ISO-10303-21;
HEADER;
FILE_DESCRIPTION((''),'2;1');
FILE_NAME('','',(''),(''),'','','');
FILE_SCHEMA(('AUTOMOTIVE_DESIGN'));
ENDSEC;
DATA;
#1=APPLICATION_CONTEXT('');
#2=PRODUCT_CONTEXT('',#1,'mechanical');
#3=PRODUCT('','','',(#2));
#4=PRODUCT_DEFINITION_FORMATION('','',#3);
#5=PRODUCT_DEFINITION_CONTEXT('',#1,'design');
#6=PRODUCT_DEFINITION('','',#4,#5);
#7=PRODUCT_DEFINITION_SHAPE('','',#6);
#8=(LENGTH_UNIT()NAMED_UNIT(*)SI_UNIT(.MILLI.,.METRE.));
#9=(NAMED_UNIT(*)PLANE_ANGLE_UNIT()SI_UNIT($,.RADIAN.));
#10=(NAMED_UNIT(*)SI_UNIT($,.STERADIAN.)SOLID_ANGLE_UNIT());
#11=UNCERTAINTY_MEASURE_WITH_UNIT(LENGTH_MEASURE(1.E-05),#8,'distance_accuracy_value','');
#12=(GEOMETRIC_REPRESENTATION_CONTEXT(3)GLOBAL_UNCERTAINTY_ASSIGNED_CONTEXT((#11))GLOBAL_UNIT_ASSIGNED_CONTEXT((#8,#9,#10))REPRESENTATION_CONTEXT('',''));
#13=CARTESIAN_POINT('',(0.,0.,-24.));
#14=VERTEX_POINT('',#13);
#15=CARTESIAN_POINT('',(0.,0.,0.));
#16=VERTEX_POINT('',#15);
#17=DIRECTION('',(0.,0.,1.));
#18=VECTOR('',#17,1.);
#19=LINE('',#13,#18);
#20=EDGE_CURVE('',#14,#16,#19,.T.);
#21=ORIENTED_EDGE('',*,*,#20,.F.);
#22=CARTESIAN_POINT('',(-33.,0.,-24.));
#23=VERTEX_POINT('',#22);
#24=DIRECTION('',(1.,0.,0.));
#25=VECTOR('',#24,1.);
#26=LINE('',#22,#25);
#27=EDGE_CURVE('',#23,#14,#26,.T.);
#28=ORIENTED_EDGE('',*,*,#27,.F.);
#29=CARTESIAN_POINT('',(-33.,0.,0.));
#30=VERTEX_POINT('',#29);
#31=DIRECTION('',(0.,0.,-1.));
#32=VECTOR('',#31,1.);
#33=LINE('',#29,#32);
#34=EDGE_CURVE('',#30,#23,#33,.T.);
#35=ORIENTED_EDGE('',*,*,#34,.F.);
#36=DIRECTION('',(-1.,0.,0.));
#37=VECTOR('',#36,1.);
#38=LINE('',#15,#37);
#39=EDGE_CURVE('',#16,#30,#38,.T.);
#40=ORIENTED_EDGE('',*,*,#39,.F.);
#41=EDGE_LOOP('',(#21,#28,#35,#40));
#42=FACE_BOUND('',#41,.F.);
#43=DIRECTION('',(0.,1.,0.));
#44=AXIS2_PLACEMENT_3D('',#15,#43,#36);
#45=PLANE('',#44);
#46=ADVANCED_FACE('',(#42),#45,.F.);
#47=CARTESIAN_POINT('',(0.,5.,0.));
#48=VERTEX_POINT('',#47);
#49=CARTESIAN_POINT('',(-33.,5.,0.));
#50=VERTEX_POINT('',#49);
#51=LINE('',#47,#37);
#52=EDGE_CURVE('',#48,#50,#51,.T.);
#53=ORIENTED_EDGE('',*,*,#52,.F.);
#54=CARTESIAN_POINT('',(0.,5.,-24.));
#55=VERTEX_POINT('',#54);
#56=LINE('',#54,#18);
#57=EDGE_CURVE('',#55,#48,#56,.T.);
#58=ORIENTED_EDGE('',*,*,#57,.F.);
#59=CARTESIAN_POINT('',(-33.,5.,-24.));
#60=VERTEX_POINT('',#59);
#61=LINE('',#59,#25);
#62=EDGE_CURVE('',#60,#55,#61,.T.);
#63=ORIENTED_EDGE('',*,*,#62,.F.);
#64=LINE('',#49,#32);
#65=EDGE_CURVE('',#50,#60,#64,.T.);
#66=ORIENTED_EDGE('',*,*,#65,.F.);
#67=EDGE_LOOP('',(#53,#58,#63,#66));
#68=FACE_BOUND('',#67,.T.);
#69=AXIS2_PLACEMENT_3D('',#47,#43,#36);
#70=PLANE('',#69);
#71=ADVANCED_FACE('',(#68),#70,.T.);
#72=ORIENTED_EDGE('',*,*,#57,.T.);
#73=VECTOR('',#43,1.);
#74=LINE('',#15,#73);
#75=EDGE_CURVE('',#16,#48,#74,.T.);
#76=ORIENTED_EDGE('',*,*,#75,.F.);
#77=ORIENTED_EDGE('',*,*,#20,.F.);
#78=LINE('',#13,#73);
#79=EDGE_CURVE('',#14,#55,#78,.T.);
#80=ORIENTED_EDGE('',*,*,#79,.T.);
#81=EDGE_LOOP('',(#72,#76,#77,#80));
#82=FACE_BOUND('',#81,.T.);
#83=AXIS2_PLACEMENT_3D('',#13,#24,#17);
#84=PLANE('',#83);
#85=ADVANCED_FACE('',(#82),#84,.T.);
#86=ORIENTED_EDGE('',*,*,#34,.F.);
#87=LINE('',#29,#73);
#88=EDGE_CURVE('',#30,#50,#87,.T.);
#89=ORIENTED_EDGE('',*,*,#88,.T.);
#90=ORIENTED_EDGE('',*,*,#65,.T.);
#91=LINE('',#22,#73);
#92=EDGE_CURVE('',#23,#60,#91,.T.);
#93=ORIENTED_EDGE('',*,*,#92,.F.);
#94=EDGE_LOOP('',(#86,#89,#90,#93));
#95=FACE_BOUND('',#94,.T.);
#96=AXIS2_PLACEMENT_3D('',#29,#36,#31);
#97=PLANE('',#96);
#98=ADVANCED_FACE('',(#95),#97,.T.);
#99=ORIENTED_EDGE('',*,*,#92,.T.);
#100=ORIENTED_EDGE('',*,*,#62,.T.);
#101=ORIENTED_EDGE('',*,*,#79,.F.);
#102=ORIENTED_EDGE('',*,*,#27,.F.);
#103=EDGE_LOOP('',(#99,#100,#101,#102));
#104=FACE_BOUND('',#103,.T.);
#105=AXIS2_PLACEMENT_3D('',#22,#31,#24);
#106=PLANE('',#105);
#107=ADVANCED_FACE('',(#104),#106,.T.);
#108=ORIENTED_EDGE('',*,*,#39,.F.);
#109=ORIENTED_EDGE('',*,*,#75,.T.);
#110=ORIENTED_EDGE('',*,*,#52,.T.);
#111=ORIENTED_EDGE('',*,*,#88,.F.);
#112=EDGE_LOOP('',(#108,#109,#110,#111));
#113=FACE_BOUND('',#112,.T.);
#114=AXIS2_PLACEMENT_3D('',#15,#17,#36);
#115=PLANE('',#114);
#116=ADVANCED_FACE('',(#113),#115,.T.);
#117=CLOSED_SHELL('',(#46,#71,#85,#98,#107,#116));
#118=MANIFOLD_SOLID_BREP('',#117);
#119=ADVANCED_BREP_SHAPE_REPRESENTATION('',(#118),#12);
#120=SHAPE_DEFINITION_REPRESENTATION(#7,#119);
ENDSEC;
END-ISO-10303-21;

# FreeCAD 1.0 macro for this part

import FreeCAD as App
import Part
import Sketcher
from FreeCAD import Vector

doc = App.newDocument("Part")
params = doc.addObject("Spreadsheet::Sheet", "Params")
for row, (alias, value) in enumerate([
    ("sketch1_width", "33 mm"),
    ("sketch1_height", "24 mm"),
    ("pad1_length", "5 mm"),
], start=1):
    params.set(f"A{row}", alias)
    params.set(f"B{row}", "=" + value)
    params.setAlias(f"B{row}", alias)

body = doc.addObject("PartDesign::Body", "Body")

sketch1 = body.newObject("Sketcher::SketchObject", "Sketch")
sketch1.AttachmentSupport = (doc.getObject("XZ_Plane"), [""])
sketch1.MapMode = "FlatFace"
sketch1.addGeometry(Part.LineSegment(Vector(-33, 0, 0), Vector(0, 0, 0)), False)
sketch1.addGeometry(Part.LineSegment(Vector(0, 0, 0), Vector(0, -24, 0)), False)
sketch1.addGeometry(Part.LineSegment(Vector(0, -24, 0), Vector(-33, -24, 0)), False)
sketch1.addGeometry(Part.LineSegment(Vector(-33, -24, 0), Vector(-33, 0, 0)), False)
sketch1.addConstraint(Sketcher.Constraint("Coincident", 0, 2, 1, 1))
sketch1.addConstraint(Sketcher.Constraint("Coincident", 1, 2, 2, 1))
sketch1.addConstraint(Sketcher.Constraint("Coincident", 2, 2, 3, 1))
sketch1.addConstraint(Sketcher.Constraint("Coincident", 3, 2, 0, 1))
sketch1.addConstraint(Sketcher.Constraint("Horizontal", 0))
sketch1.addConstraint(Sketcher.Constraint("Vertical", 1))
sketch1.addConstraint(Sketcher.Constraint("Horizontal", 2))
sketch1.addConstraint(Sketcher.Constraint("Vertical", 3))
sketch1.addConstraint(Sketcher.Constraint("Coincident", 0, 2, -1, 1))
sketch1.addConstraint(Sketcher.Constraint("DistanceX", 0, 1, 0, 2, 33.0))
sketch1.addConstraint(Sketcher.Constraint("DistanceY", 1, 2, 1, 1, 24.0))
sketch1.setExpression("Constraints[9]", "Params.sketch1_width")
sketch1.setExpression("Constraints[10]", "Params.sketch1_height")
pad1 = body.newObject("PartDesign::Pad", "Pad")
pad1.Profile = sketch1
pad1.setExpression("Length", "Params.pad1_length")
pad1.Reversed = True

doc.recompute()
